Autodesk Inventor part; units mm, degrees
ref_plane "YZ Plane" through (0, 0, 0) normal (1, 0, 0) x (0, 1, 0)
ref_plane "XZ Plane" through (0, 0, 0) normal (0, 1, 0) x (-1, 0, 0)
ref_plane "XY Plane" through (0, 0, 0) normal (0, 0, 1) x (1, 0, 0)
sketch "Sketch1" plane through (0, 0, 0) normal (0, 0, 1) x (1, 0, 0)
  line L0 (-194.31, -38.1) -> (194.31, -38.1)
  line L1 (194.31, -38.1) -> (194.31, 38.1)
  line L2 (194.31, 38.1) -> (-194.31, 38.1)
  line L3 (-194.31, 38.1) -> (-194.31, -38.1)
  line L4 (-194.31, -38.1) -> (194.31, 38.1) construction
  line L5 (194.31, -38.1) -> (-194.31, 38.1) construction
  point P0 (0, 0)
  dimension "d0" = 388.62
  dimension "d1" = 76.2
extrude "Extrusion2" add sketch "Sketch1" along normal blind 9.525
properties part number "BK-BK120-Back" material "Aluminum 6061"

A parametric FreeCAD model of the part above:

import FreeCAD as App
import Part
import Sketcher
from FreeCAD import Vector
Q = App.Units.Quantity


def add_polygon(sketch, points):
    """Adds a closed chain of lines whose ends are joined by coincident constraints."""
    first, n = sketch.GeometryCount, len(points)
    for a, b in zip(points, points[1:] + points[:1]):
        sketch.addGeometry(Part.LineSegment(App.Vector(*a, 0), App.Vector(*b, 0)), False)
    for i in range(n):
        sketch.addConstraint(Sketcher.Constraint("Coincident", first + i, 2, first + (i + 1) % n, 1))

doc = App.newDocument("Part")
params = doc.addObject("Spreadsheet::Sheet", "Params")
for row, (alias, value) in enumerate([
    ("sketch1_height", "3 in"),
    ("sketch1_width", "15.3 in"),
    ("pad1_length", "0.375 in"),
], start=1):
    params.set(f"A{row}", alias)
    params.set(f"B{row}", "=" + value)
    params.setAlias(f"B{row}", alias)

body = doc.addObject("PartDesign::Body", "Body")

# Sketch on XY plane
sketch1 = body.newObject("Sketcher::SketchObject", "Sketch")
sketch1.AttachmentSupport = (doc.getObject("XY_Plane"), [""])
sketch1.MapMode = "FlatFace"
add_polygon(sketch1, [(-194.31, 38.1), (-194.31, -38.1), (194.31, -38.1), (194.31, 38.1)])  # lines 0-3
sketch1.addConstraint([
    Sketcher.Constraint("Vertical", 0),
    Sketcher.Constraint("Horizontal", 1),
    Sketcher.Constraint("Vertical", 2),
    Sketcher.Constraint("Horizontal", 3),
    Sketcher.Constraint("Symmetric", 0, 2, 2, 2, -1, 1),
    Sketcher.Constraint("DistanceY", 0, 2, 0, 1, Q("3 in")),
    Sketcher.Constraint("DistanceX", 1, 1, 1, 2, Q("15.3 in")),
])
sketch1.setExpression("Constraints[9]", "Params.sketch1_height")
sketch1.setExpression("Constraints[10]", "Params.sketch1_width")
pad1 = body.newObject("PartDesign::Pad", "Pad")
pad1.Profile = sketch1
pad1.setExpression("Length", "Params.pad1_length")

doc.recompute()
